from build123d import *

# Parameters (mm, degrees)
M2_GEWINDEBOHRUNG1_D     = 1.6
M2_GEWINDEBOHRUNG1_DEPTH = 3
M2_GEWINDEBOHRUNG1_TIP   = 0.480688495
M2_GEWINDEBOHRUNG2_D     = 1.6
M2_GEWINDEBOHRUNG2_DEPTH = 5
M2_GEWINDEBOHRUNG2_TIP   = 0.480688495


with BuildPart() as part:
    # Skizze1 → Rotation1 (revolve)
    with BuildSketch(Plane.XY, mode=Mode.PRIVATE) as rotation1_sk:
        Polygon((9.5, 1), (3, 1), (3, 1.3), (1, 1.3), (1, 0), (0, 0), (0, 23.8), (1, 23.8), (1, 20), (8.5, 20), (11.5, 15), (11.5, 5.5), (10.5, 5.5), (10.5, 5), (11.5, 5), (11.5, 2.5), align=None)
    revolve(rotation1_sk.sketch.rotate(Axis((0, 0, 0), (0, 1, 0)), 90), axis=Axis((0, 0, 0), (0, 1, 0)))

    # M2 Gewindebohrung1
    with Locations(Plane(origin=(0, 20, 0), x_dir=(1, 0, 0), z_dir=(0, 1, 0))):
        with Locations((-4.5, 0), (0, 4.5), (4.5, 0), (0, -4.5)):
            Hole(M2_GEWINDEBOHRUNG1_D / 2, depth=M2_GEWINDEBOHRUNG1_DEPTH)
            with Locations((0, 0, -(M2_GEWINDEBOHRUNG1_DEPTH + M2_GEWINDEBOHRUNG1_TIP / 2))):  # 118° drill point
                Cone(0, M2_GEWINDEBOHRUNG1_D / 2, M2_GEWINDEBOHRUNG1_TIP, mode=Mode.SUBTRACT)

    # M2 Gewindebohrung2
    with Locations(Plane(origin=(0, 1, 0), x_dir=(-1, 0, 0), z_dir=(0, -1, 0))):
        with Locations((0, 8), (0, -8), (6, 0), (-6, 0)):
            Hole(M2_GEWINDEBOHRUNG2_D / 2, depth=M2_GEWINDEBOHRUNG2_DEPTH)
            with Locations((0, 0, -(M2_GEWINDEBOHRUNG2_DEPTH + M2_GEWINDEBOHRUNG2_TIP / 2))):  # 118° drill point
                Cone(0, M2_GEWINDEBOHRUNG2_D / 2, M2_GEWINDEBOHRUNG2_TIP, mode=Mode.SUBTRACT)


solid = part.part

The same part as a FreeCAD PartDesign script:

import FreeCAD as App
import Part
import Sketcher

V = App.Vector
Q = App.Units.Quantity

doc = App.newDocument("Part")
body = doc.addObject("PartDesign::Body", "Body")

sketch1 = body.newObject("Sketcher::SketchObject", "Sketch")
sketch1.AttachmentSupport = (doc.getObject("XY_Plane"), [""])
sketch1.MapMode = "FlatFace"
sketch1.addGeometry(Part.LineSegment(V(3, 1, 0), V(9.5, 1, 0)), False)
sketch1.addGeometry(Part.LineSegment(V(9.5, 1, 0), V(11.5, 2.5, 0)), False)
sketch1.addGeometry(Part.LineSegment(V(11.5, 2.5, 0), V(11.5, 5, 0)), False)
sketch1.addGeometry(Part.LineSegment(V(11.5, 5, 0), V(10.5, 5, 0)), False)
sketch1.addGeometry(Part.LineSegment(V(10.5, 5, 0), V(10.5, 5.5, 0)), False)
sketch1.addGeometry(Part.LineSegment(V(10.5, 5.5, 0), V(11.5, 5.5, 0)), False)
sketch1.addGeometry(Part.LineSegment(V(11.5, 5.5, 0), V(11.5, 15, 0)), False)
sketch1.addGeometry(Part.LineSegment(V(11.5, 15, 0), V(8.5, 20, 0)), False)
sketch1.addGeometry(Part.LineSegment(V(8.5, 20, 0), V(1, 20, 0)), False)
sketch1.addGeometry(Part.LineSegment(V(1, 20, 0), V(1, 23.8, 0)), False)
sketch1.addGeometry(Part.LineSegment(V(1, 23.8, 0), V(0, 23.8, 0)), False)
sketch1.addGeometry(Part.LineSegment(V(0, 23.8, 0), V(0, 0, 0)), False)
sketch1.addGeometry(Part.LineSegment(V(0, 0, 0), V(1, 0, 0)), False)
sketch1.addGeometry(Part.LineSegment(V(1, 0, 0), V(1, 1.3, 0)), False)
sketch1.addGeometry(Part.LineSegment(V(1, 1.3, 0), V(3, 1.3, 0)), False)
sketch1.addGeometry(Part.LineSegment(V(3, 1.3, 0), V(3, 1, 0)), False)
sketch1.addConstraint(Sketcher.Constraint("Coincident", 0, 2, 1, 1))
sketch1.addConstraint(Sketcher.Constraint("Coincident", 1, 2, 2, 1))
sketch1.addConstraint(Sketcher.Constraint("Coincident", 2, 2, 3, 1))
sketch1.addConstraint(Sketcher.Constraint("Coincident", 3, 2, 4, 1))
sketch1.addConstraint(Sketcher.Constraint("Coincident", 4, 2, 5, 1))
sketch1.addConstraint(Sketcher.Constraint("Coincident", 5, 2, 6, 1))
sketch1.addConstraint(Sketcher.Constraint("Coincident", 6, 2, 7, 1))
sketch1.addConstraint(Sketcher.Constraint("Coincident", 7, 2, 8, 1))
sketch1.addConstraint(Sketcher.Constraint("Coincident", 8, 2, 9, 1))
sketch1.addConstraint(Sketcher.Constraint("Coincident", 9, 2, 10, 1))
sketch1.addConstraint(Sketcher.Constraint("Coincident", 10, 2, 11, 1))
sketch1.addConstraint(Sketcher.Constraint("Coincident", 11, 2, 12, 1))
sketch1.addConstraint(Sketcher.Constraint("Coincident", 12, 2, 13, 1))
sketch1.addConstraint(Sketcher.Constraint("Coincident", 13, 2, 14, 1))
sketch1.addConstraint(Sketcher.Constraint("Coincident", 14, 2, 15, 1))
sketch1.addConstraint(Sketcher.Constraint("Coincident", 15, 2, 0, 1))
sketch1.addConstraint(Sketcher.Constraint("Horizontal", 0))
sketch1.addConstraint(Sketcher.Constraint("Vertical", 2))
sketch1.addConstraint(Sketcher.Constraint("Horizontal", 3))
sketch1.addConstraint(Sketcher.Constraint("Vertical", 4))
sketch1.addConstraint(Sketcher.Constraint("Horizontal", 5))
sketch1.addConstraint(Sketcher.Constraint("Vertical", 6))
sketch1.addConstraint(Sketcher.Constraint("Horizontal", 8))
sketch1.addConstraint(Sketcher.Constraint("Vertical", 9))
sketch1.addConstraint(Sketcher.Constraint("Horizontal", 10))
sketch1.addConstraint(Sketcher.Constraint("Vertical", 11))
sketch1.addConstraint(Sketcher.Constraint("Horizontal", 12))
sketch1.addConstraint(Sketcher.Constraint("Vertical", 13))
sketch1.addConstraint(Sketcher.Constraint("Horizontal", 14))
sketch1.addConstraint(Sketcher.Constraint("Vertical", 15))
sketch1.addConstraint(Sketcher.Constraint("Coincident", 11, 2, -1, 1))
sketch1.addConstraint(Sketcher.Constraint("Vertical", 2, 2, 5, 2))
sketch1.addConstraint(Sketcher.Constraint("Vertical", 9, 2, 12, 2))
sketch1.addConstraint(Sketcher.Constraint("Equal", 5, 10))
sketch1.addConstraint(Sketcher.Constraint("DistanceX", 3, 2, 3, 1, Q("1 mm")))
sketch1.addConstraint(Sketcher.Constraint("DistanceX", 14, 1, 14, 2, Q("2 mm")))
sketch1.addConstraint(Sketcher.Constraint("DistanceX", 0, 1, 0, 2, Q("6.5 mm")))
sketch1.addConstraint(Sketcher.Constraint("DistanceX", 8, 2, 8, 1, Q("7.5 mm")))
sketch1.addConstraint(Sketcher.Constraint("DistanceY", 2, 1, 2, 2, Q("2.5 mm")))
sketch1.addConstraint(Sketcher.Constraint("DistanceY", 4, 1, 4, 2, Q("0.5 mm")))
sketch1.addConstraint(Sketcher.Constraint("DistanceY", 6, 1, 6, 2, Q("9.5 mm")))
sketch1.addConstraint(Sketcher.Constraint("DistanceY", 9, 1, 9, 2, Q("3.8 mm")))
sketch1.addConstraint(Sketcher.Constraint("DistanceY", 11, 2, 11, 1, Q("23.8 mm")))
sketch1.addConstraint(Sketcher.Constraint("DistanceY", 13, 1, 13, 2, Q("1.3 mm")))
sketch1.addConstraint(Sketcher.Constraint("DistanceY", 15, 2, 15, 1, Q("0.3 mm")))
sketch1.addConstraint(Sketcher.Constraint("DistanceY", -1, 1, 2, 2, Q("5 mm")))
sketch1.addConstraint(Sketcher.Constraint("DistanceX", 0, 2, 1, 2, Q("2 mm")))
revolution = body.newObject("PartDesign::Revolution", "Revolution")
revolution.Profile = sketch1
revolution.ReferenceAxis = (sketch1, ["V_Axis"])
revolution.Angle = 360

sketch2 = body.newObject("Sketcher::SketchObject", "Sketch001")
sketch2.AttachmentSupport = (doc.getObject("XZ_Plane"), [""])
sketch2.MapMode = "FlatFace"
sketch2.AttachmentOffset = App.Placement(V(0, 0, -20), App.Rotation())
sketch2.addGeometry(Part.Circle(V(-4.5, 0, 0), V(0, 0, 1), 0.8), False)
sketch2.addGeometry(Part.Circle(V(0, -4.5, 0), V(0, 0, 1), 0.8), False)
sketch2.addGeometry(Part.Circle(V(4.5, 0, 0), V(0, 0, 1), 0.8), False)
sketch2.addGeometry(Part.Circle(V(0, 4.5, 0), V(0, 0, 1), 0.8), False)
sketch2.addConstraint(Sketcher.Constraint("Equal", 0, 1))
sketch2.addConstraint(Sketcher.Constraint("Equal", 1, 2))
sketch2.addConstraint(Sketcher.Constraint("Equal", 2, 3))
sketch2.addConstraint(Sketcher.Constraint("Symmetric", 0, 3, 2, 3, -1, 1))
sketch2.addConstraint(Sketcher.Constraint("Symmetric", 1, 3, 3, 3, -1, 1))
sketch2.addConstraint(Sketcher.Constraint("PointOnObject", 0, 3, -1))
sketch2.addConstraint(Sketcher.Constraint("PointOnObject", 1, 3, -2))
sketch2.addConstraint(Sketcher.Constraint("Diameter", 0, Q("1.6 mm")))
sketch2.addConstraint(Sketcher.Constraint("DistanceX", 0, 3, 2, 3, Q("9 mm")))
sketch2.addConstraint(Sketcher.Constraint("DistanceY", 1, 3, 3, 3, Q("9 mm")))
doc.recompute()
hole = body.newObject("PartDesign::Hole", "Hole")
hole.Profile = sketch2
hole.ThreadType = "None"
hole.Diameter = 1.6
hole.DepthType = "Dimension"
hole.Depth = 3
hole.DrillPoint = "Angled"
hole.DrillPointAngle = 118
hole.Reversed = True

sketch3 = body.newObject("Sketcher::SketchObject", "Sketch002")
sketch3.AttachmentSupport = (doc.getObject("XZ_Plane"), [""])
sketch3.MapMode = "FlatFace"
sketch3.AttachmentOffset = App.Placement(V(0, 0, -1), App.Rotation())
sketch3.addGeometry(Part.Circle(V(0, -8, 0), V(0, 0, 1), 0.8), False)
sketch3.addGeometry(Part.Circle(V(0, 8, 0), V(0, 0, 1), 0.8), False)
sketch3.addGeometry(Part.Circle(V(-6, 0, 0), V(0, 0, 1), 0.8), False)
sketch3.addGeometry(Part.Circle(V(6, 0, 0), V(0, 0, 1), 0.8), False)
sketch3.addConstraint(Sketcher.Constraint("Equal", 0, 1))
sketch3.addConstraint(Sketcher.Constraint("Equal", 1, 2))
sketch3.addConstraint(Sketcher.Constraint("Equal", 2, 3))
sketch3.addConstraint(Sketcher.Constraint("Symmetric", 0, 3, 1, 3, -1, 1))
sketch3.addConstraint(Sketcher.Constraint("Symmetric", 2, 3, 3, 3, -1, 1))
sketch3.addConstraint(Sketcher.Constraint("PointOnObject", 0, 3, -2))
sketch3.addConstraint(Sketcher.Constraint("PointOnObject", 2, 3, -1))
sketch3.addConstraint(Sketcher.Constraint("Diameter", 0, Q("1.6 mm")))
sketch3.addConstraint(Sketcher.Constraint("DistanceY", 0, 3, -1, 1, Q("8 mm")))
sketch3.addConstraint(Sketcher.Constraint("DistanceX", 2, 3, -1, 1, Q("6 mm")))
doc.recompute()
hole2 = body.newObject("PartDesign::Hole", "Hole001")
hole2.Profile = sketch3
hole2.ThreadType = "None"
hole2.Diameter = 1.6
hole2.DepthType = "Dimension"
hole2.Depth = 5
hole2.DrillPoint = "Angled"
hole2.DrillPointAngle = 118

doc.recompute()
